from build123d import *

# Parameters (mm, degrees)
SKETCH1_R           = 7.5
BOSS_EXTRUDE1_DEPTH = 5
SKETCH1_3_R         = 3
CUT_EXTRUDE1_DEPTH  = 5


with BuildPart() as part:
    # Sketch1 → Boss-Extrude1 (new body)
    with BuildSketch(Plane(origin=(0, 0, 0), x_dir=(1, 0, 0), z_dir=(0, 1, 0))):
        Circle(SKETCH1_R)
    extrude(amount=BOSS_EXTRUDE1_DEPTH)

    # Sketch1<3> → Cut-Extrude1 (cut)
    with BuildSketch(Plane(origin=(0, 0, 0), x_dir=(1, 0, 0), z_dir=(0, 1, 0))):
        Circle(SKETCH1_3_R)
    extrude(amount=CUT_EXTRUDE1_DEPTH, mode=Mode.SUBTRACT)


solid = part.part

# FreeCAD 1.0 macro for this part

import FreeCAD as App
import Part
import Sketcher
from FreeCAD import Vector

doc = App.newDocument("Part")
body = doc.addObject("PartDesign::Body", "Body")

# Sketch on XZ plane
sketch1 = doc.addObject("Sketcher::SketchObject", "Sketch")
body.addObject(sketch1)
sketch1.AttachmentSupport = (doc.XZ_Plane, [""])
sketch1.MapMode = "FlatFace"
sketch1.addGeometry(Part.Circle(Vector(0, 0, 0), Vector(0, 0, 1), 8), False)
sketch1.addConstraint([
    Sketcher.Constraint("Coincident", 0, 3, -1, 1),
    Sketcher.Constraint("Diameter", 0, 15.0),
])
pad1 = doc.addObject("PartDesign::Pad", "Pad")
body.addObject(pad1)
pad1.Profile = sketch1
pad1.Length = 5
pad1.Reversed = True

# Sketch on XZ plane
sketch2 = doc.addObject("Sketcher::SketchObject", "Sketch001")
body.addObject(sketch2)
sketch2.AttachmentSupport = (doc.XZ_Plane, [""])
sketch2.MapMode = "FlatFace"
sketch2.addGeometry(Part.Circle(Vector(0, 0, 0), Vector(0, 0, 1), 3), False)
sketch2.addConstraint([
    Sketcher.Constraint("Coincident", 0, 3, -1, 1),
    Sketcher.Constraint("Diameter", 0, 6.0),
])
pocket1 = doc.addObject("PartDesign::Pocket", "Pocket")
body.addObject(pocket1)
pocket1.Profile = sketch2
pocket1.Length = 5

doc.recompute()
